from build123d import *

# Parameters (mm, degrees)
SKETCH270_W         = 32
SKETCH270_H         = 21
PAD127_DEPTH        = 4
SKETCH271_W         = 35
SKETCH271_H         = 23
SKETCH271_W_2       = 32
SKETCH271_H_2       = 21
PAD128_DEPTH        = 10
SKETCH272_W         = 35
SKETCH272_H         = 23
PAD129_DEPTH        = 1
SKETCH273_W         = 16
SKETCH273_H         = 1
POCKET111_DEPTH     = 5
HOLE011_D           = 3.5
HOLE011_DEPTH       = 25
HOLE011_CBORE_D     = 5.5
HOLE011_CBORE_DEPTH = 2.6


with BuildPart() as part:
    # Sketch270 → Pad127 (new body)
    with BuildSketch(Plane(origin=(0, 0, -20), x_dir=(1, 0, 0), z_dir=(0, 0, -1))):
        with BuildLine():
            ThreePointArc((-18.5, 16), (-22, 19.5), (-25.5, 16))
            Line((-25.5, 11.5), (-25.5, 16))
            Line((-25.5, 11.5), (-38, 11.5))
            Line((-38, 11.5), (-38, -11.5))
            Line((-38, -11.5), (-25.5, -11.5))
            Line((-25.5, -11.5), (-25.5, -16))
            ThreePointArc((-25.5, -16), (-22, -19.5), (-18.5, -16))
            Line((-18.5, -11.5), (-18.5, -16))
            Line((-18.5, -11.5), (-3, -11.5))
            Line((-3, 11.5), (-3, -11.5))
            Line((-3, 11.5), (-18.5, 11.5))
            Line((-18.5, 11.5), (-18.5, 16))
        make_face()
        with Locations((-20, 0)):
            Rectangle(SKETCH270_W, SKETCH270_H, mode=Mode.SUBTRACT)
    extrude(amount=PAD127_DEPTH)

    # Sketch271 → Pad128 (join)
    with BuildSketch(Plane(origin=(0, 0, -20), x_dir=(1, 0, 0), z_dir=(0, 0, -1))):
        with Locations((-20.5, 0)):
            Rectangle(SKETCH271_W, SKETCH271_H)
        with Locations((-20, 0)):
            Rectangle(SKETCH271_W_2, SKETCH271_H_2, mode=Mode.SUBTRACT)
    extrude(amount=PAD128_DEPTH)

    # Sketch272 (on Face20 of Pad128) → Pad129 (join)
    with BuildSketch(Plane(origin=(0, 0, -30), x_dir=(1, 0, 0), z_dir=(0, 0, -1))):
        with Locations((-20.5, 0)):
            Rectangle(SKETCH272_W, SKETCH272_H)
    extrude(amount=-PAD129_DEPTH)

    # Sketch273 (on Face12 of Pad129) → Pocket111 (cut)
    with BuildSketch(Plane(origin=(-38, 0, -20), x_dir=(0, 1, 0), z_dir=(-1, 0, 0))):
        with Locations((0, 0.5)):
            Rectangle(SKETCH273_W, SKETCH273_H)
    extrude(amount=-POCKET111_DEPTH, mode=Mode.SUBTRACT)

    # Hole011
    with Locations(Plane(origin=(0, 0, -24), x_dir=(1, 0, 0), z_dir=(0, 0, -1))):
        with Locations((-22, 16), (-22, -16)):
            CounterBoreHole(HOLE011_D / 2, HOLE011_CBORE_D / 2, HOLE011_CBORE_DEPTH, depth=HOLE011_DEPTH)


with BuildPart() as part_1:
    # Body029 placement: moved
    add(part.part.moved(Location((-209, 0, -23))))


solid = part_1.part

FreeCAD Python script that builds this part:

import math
import FreeCAD as App
import Part
import Sketcher
Q = App.Units.Quantity

doc = App.newDocument("Part")
body = doc.addObject("PartDesign::Body", "Body")

# Sketch on XY plane
sketch1 = body.newObject("Sketcher::SketchObject", "Sketch")
sketch1.AttachmentSupport = (doc.getObject("XY_Plane"), [""])
sketch1.MapMode = "FlatFace"
sketch1.AttachmentOffset = App.Placement(App.Vector(0, 0, -20), App.Rotation())
sketch1.addGeometry([
    Part.ArcOfCircle(Part.Circle(App.Vector(-22, -16, 0), App.Vector(0, 0, 1), 3.5), math.radians(180), math.radians(360)),  # 0
    Part.LineSegment(App.Vector(-25.5, -16, 0), App.Vector(-25.5, -11.5, 0)),  # 1
    Part.LineSegment(App.Vector(-25.5, -11.5, 0), App.Vector(-38, -11.5, 0)),  # 2
    Part.LineSegment(App.Vector(-38, -11.5, 0), App.Vector(-38, 11.5, 0)),  # 3
    Part.LineSegment(App.Vector(-38, 11.5, 0), App.Vector(-25.5, 11.5, 0)),  # 4
    Part.LineSegment(App.Vector(-25.5, 11.5, 0), App.Vector(-25.5, 16, 0)),  # 5
    Part.ArcOfCircle(Part.Circle(App.Vector(-22, 16, 0), App.Vector(0, 0, 1), 3.5), math.radians(0), math.radians(180)),  # 6
    Part.LineSegment(App.Vector(-18.5, 16, 0), App.Vector(-18.5, 11.5, 0)),  # 7
    Part.LineSegment(App.Vector(-18.5, 11.5, 0), App.Vector(-3, 11.5, 0)),  # 8
    Part.LineSegment(App.Vector(-3, 11.5, 0), App.Vector(-3, -11.5, 0)),  # 9
    Part.LineSegment(App.Vector(-3, -11.5, 0), App.Vector(-18.5, -11.5, 0)),  # 10
    Part.LineSegment(App.Vector(-18.5, -11.5, 0), App.Vector(-18.5, -16, 0)),  # 11
    Part.LineSegment(App.Vector(-4, 10.5, 0), App.Vector(-36, 10.5, 0)),  # 12
    Part.LineSegment(App.Vector(-36, 10.5, 0), App.Vector(-36, -10.5, 0)),  # 13
    Part.LineSegment(App.Vector(-36, -10.5, 0), App.Vector(-4, -10.5, 0)),  # 14
    Part.LineSegment(App.Vector(-4, -10.5, 0), App.Vector(-4, 10.5, 0)),  # 15
], False)
sketch1.addConstraint([
    Sketcher.Constraint("Tangent", 0, 1, 1, 1),
    Sketcher.Constraint("Coincident", 1, 2, 2, 1),
    Sketcher.Constraint("Coincident", 2, 2, 3, 1),
    Sketcher.Constraint("Coincident", 3, 2, 4, 1),
    Sketcher.Constraint("Coincident", 4, 2, 5, 1),
    Sketcher.Constraint("Tangent", 5, 2, 6, 2),
    Sketcher.Constraint("Tangent", 6, 1, 7, 1),
    Sketcher.Constraint("Coincident", 7, 2, 8, 1),
    Sketcher.Constraint("Coincident", 8, 2, 9, 1),
    Sketcher.Constraint("Coincident", 9, 2, 10, 1),
    Sketcher.Constraint("Coincident", 10, 2, 11, 1),
    Sketcher.Constraint("Tangent", 11, 2, 0, 2),
    Sketcher.Constraint("Coincident", 12, 2, 13, 1),
    Sketcher.Constraint("Coincident", 13, 2, 14, 1),
    Sketcher.Constraint("Coincident", 14, 2, 15, 1),
    Sketcher.Constraint("Coincident", 15, 2, 12, 1),
    Sketcher.Constraint("Vertical", 1),
    Sketcher.Constraint("Horizontal", 2),
    Sketcher.Constraint("Vertical", 3),
    Sketcher.Constraint("Horizontal", 4),
    Sketcher.Constraint("Vertical", 5),
    Sketcher.Constraint("Vertical", 7),
    Sketcher.Constraint("Horizontal", 8),
    Sketcher.Constraint("Vertical", 9),
    Sketcher.Constraint("Horizontal", 10),
    Sketcher.Constraint("Vertical", 11),
    Sketcher.Constraint("Horizontal", 12),
    Sketcher.Constraint("Vertical", 13),
    Sketcher.Constraint("Horizontal", 14),
    Sketcher.Constraint("Vertical", 15),
    Sketcher.Constraint("Equal", 0, 6),
    Sketcher.Constraint("Symmetric", 0, 3, 6, 3, -1),
    Sketcher.Constraint("Horizontal", 4, 2, 7, 2),
    Sketcher.Constraint("Horizontal", 2, 2, 9, 2),
    Sketcher.Constraint("Equal", 1, 5),
    Sketcher.Constraint("Radius", 0, Q("3.5 mm")),
    Sketcher.Constraint("DistanceX", 12, 2, 12, 1, Q("32 mm")),
    Sketcher.Constraint("DistanceY", 3, 1, 3, 2, Q("23 mm")),
    Sketcher.Constraint("DistanceY", 13, 2, 13, 1, Q("21 mm")),
    Sketcher.Constraint("DistanceX", 2, 2, 2, 1, Q("12.5 mm")),
    Sketcher.Constraint("DistanceX", 8, 1, 8, 2, Q("15.5 mm")),
    Sketcher.Constraint("DistanceY", 1, 1, 1, 2, Q("4.5 mm")),
    Sketcher.Constraint("DistanceX", 0, 3, -1, 1, Q("22 mm")),
    Sketcher.Constraint("DistanceX", 12, 2, -1, 1, Q("36 mm")),
    Sketcher.Constraint("DistanceY", 12, 2, 3, 2, Q("1 mm")),
])
pad1 = body.newObject("PartDesign::Pad", "Pad")
pad1.Profile = sketch1
pad1.Length = 4
pad1.Reversed = True

# Sketch on XY plane
sketch2 = body.newObject("Sketcher::SketchObject", "Sketch001")
sketch2.AttachmentSupport = (doc.getObject("XY_Plane"), [""])
sketch2.MapMode = "FlatFace"
sketch2.AttachmentOffset = App.Placement(App.Vector(0, 0, -20), App.Rotation())
sketch2.addGeometry([
    Part.LineSegment(App.Vector(-38, -11.5, 0), App.Vector(-38, 11.5, 0)),  # 0
    Part.LineSegment(App.Vector(-38, 11.5, 0), App.Vector(-3, 11.5, 0)),  # 1
    Part.LineSegment(App.Vector(-3, 11.5, 0), App.Vector(-3, -11.5, 0)),  # 2
    Part.LineSegment(App.Vector(-3, -11.5, 0), App.Vector(-38, -11.5, 0)),  # 3
    Part.LineSegment(App.Vector(-4, 10.5, 0), App.Vector(-36, 10.5, 0)),  # 4
    Part.LineSegment(App.Vector(-36, 10.5, 0), App.Vector(-36, -10.5, 0)),  # 5
    Part.LineSegment(App.Vector(-36, -10.5, 0), App.Vector(-4, -10.5, 0)),  # 6
    Part.LineSegment(App.Vector(-4, -10.5, 0), App.Vector(-4, 10.5, 0)),  # 7
], False)
sketch2.addConstraint([
    Sketcher.Constraint("Coincident", 0, 2, 1, 1),
    Sketcher.Constraint("Coincident", 1, 2, 2, 1),
    Sketcher.Constraint("Coincident", 2, 2, 3, 1),
    Sketcher.Constraint("Coincident", 3, 2, 0, 1),
    Sketcher.Constraint("Coincident", 4, 2, 5, 1),
    Sketcher.Constraint("Coincident", 5, 2, 6, 1),
    Sketcher.Constraint("Coincident", 6, 2, 7, 1),
    Sketcher.Constraint("Coincident", 7, 2, 4, 1),
    Sketcher.Constraint("Vertical", 0),
    Sketcher.Constraint("Horizontal", 1),
    Sketcher.Constraint("Vertical", 2),
    Sketcher.Constraint("Horizontal", 3),
    Sketcher.Constraint("Horizontal", 4),
    Sketcher.Constraint("Vertical", 5),
    Sketcher.Constraint("Horizontal", 6),
    Sketcher.Constraint("Vertical", 7),
    Sketcher.Constraint("DistanceX", 1, 1, 1, 2, Q("35 mm")),
    Sketcher.Constraint("DistanceX", 4, 2, 4, 1, Q("32 mm")),
    Sketcher.Constraint("DistanceY", 0, 1, 0, 2, Q("23 mm")),
    Sketcher.Constraint("DistanceY", 5, 2, 5, 1, Q("21 mm")),
    Sketcher.Constraint("DistanceX", 0, 2, -1, 1, Q("38 mm")),
    Sketcher.Constraint("DistanceX", 4, 2, -1, 1, Q("36 mm")),
    Sketcher.Constraint("DistanceY", 4, 2, 0, 2, Q("1 mm")),
    Sketcher.Constraint("DistanceY", -1, 1, 0, 2, Q("11.5 mm")),
])
pad2 = body.newObject("PartDesign::Pad", "Pad001")
pad2.Profile = sketch2
pad2.Length = 10
pad2.Reversed = True

# Sketch on XY plane
sketch3 = body.newObject("Sketcher::SketchObject", "Sketch002")
sketch3.AttachmentSupport = (doc.getObject("XY_Plane"), [""])
sketch3.MapMode = "FlatFace"
sketch3.AttachmentOffset = App.Placement(App.Vector(0, 0, -30), App.Rotation())
sketch3.addGeometry([
    Part.LineSegment(App.Vector(-38, -11.5, 0), App.Vector(-38, 11.5, 0)),
    Part.LineSegment(App.Vector(-38, 11.5, 0), App.Vector(-3, 11.5, 0)),
    Part.LineSegment(App.Vector(-3, 11.5, 0), App.Vector(-3, -11.5, 0)),
    Part.LineSegment(App.Vector(-3, -11.5, 0), App.Vector(-38, -11.5, 0)),
], False)
sketch3.addConstraint([
    Sketcher.Constraint("Coincident", 0, 2, 1, 1),
    Sketcher.Constraint("Coincident", 1, 2, 2, 1),
    Sketcher.Constraint("Coincident", 2, 2, 3, 1),
    Sketcher.Constraint("Coincident", 3, 2, 0, 1),
    Sketcher.Constraint("Vertical", 0),
    Sketcher.Constraint("Horizontal", 1),
    Sketcher.Constraint("Vertical", 2),
    Sketcher.Constraint("Horizontal", 3),
    Sketcher.Constraint("DistanceX", 1, 1, 1, 2, Q("35 mm")),
    Sketcher.Constraint("DistanceY", 0, 1, 0, 2, Q("23 mm")),
    Sketcher.Constraint("DistanceX", 0, 2, -1, 1, Q("38 mm")),
    Sketcher.Constraint("DistanceY", -1, 1, 0, 2, Q("11.5 mm")),
])
pad3 = body.newObject("PartDesign::Pad", "Pad002")
pad3.Profile = sketch3
pad3.Length = 1

# Sketch on YZ plane
sketch4 = body.newObject("Sketcher::SketchObject", "Sketch003")
sketch4.AttachmentSupport = (doc.getObject("YZ_Plane"), [""])
sketch4.MapMode = "FlatFace"
sketch4.AttachmentOffset = App.Placement(App.Vector(0, 0, -38), App.Rotation())
sketch4.addGeometry([
    Part.LineSegment(App.Vector(-8, -21, 0), App.Vector(-8, -20, 0)),
    Part.LineSegment(App.Vector(-8, -20, 0), App.Vector(8, -20, 0)),
    Part.LineSegment(App.Vector(8, -20, 0), App.Vector(8, -21, 0)),
    Part.LineSegment(App.Vector(8, -21, 0), App.Vector(-8, -21, 0)),
], False)
sketch4.addConstraint([
    Sketcher.Constraint("Coincident", 0, 2, 1, 1),
    Sketcher.Constraint("Coincident", 1, 2, 2, 1),
    Sketcher.Constraint("Coincident", 2, 2, 3, 1),
    Sketcher.Constraint("Coincident", 3, 2, 0, 1),
    Sketcher.Constraint("Vertical", 0),
    Sketcher.Constraint("Horizontal", 1),
    Sketcher.Constraint("Vertical", 2),
    Sketcher.Constraint("Horizontal", 3),
    Sketcher.Constraint("DistanceX", 1, 1, 1, 2, Q("16 mm")),
    Sketcher.Constraint("DistanceY", 0, 1, 0, 2, Q("1 mm")),
    Sketcher.Constraint("DistanceX", 0, 2, -1, 1, Q("8 mm")),
    Sketcher.Constraint("DistanceY", 0, 2, -1, 1, Q("20 mm")),
])
pocket1 = body.newObject("PartDesign::Pocket", "Pocket")
pocket1.Profile = sketch4
pocket1.Length = 5
pocket1.Reversed = True

# Sketch on XY plane
sketch5 = body.newObject("Sketcher::SketchObject", "Sketch004")
sketch5.AttachmentSupport = (doc.getObject("XY_Plane"), [""])
sketch5.MapMode = "FlatFace"
sketch5.AttachmentOffset = App.Placement(App.Vector(0, 0, -24), App.Rotation())
sketch5.addGeometry([
    Part.Circle(App.Vector(-22, -16, 0), App.Vector(0, 0, 1), 1.75),
    Part.Circle(App.Vector(-22, 16, 0), App.Vector(0, 0, 1), 1.75),
], False)
sketch5.addConstraint([
    Sketcher.Constraint("Equal", 0, 1),
    Sketcher.Constraint("Symmetric", 0, 3, 1, 3, -1),
    Sketcher.Constraint("Diameter", 0, Q("3.5 mm")),
    Sketcher.Constraint("DistanceX", 0, 3, -1, 1, Q("22 mm")),
    Sketcher.Constraint("DistanceY", 0, 3, -1, 1, Q("16 mm")),
])
doc.recompute()
hole = body.newObject("PartDesign::Hole", "Hole")
hole.Profile = sketch5
hole.ThreadType = "None"
hole.Diameter = 3.5
hole.DepthType = "Dimension"
hole.Depth = 25
hole.DrillPoint = "Flat"
hole.HoleCutType = "Counterbore"
hole.HoleCutDiameter = 5.5
hole.HoleCutDepth = 2.6
hole.Reversed = True
body2 = doc.addObject("PartDesign::Body", "Body001")
doc.recompute()

body.Placement = App.Placement(App.Vector(-209, 0, -23), App.Rotation(App.Vector(0, 0, 1), 0))
boolean = body2.newObject("PartDesign::Boolean", "Boolean")
boolean.Type = "Fuse"
boolean.addObjects([body])

doc.recompute()
